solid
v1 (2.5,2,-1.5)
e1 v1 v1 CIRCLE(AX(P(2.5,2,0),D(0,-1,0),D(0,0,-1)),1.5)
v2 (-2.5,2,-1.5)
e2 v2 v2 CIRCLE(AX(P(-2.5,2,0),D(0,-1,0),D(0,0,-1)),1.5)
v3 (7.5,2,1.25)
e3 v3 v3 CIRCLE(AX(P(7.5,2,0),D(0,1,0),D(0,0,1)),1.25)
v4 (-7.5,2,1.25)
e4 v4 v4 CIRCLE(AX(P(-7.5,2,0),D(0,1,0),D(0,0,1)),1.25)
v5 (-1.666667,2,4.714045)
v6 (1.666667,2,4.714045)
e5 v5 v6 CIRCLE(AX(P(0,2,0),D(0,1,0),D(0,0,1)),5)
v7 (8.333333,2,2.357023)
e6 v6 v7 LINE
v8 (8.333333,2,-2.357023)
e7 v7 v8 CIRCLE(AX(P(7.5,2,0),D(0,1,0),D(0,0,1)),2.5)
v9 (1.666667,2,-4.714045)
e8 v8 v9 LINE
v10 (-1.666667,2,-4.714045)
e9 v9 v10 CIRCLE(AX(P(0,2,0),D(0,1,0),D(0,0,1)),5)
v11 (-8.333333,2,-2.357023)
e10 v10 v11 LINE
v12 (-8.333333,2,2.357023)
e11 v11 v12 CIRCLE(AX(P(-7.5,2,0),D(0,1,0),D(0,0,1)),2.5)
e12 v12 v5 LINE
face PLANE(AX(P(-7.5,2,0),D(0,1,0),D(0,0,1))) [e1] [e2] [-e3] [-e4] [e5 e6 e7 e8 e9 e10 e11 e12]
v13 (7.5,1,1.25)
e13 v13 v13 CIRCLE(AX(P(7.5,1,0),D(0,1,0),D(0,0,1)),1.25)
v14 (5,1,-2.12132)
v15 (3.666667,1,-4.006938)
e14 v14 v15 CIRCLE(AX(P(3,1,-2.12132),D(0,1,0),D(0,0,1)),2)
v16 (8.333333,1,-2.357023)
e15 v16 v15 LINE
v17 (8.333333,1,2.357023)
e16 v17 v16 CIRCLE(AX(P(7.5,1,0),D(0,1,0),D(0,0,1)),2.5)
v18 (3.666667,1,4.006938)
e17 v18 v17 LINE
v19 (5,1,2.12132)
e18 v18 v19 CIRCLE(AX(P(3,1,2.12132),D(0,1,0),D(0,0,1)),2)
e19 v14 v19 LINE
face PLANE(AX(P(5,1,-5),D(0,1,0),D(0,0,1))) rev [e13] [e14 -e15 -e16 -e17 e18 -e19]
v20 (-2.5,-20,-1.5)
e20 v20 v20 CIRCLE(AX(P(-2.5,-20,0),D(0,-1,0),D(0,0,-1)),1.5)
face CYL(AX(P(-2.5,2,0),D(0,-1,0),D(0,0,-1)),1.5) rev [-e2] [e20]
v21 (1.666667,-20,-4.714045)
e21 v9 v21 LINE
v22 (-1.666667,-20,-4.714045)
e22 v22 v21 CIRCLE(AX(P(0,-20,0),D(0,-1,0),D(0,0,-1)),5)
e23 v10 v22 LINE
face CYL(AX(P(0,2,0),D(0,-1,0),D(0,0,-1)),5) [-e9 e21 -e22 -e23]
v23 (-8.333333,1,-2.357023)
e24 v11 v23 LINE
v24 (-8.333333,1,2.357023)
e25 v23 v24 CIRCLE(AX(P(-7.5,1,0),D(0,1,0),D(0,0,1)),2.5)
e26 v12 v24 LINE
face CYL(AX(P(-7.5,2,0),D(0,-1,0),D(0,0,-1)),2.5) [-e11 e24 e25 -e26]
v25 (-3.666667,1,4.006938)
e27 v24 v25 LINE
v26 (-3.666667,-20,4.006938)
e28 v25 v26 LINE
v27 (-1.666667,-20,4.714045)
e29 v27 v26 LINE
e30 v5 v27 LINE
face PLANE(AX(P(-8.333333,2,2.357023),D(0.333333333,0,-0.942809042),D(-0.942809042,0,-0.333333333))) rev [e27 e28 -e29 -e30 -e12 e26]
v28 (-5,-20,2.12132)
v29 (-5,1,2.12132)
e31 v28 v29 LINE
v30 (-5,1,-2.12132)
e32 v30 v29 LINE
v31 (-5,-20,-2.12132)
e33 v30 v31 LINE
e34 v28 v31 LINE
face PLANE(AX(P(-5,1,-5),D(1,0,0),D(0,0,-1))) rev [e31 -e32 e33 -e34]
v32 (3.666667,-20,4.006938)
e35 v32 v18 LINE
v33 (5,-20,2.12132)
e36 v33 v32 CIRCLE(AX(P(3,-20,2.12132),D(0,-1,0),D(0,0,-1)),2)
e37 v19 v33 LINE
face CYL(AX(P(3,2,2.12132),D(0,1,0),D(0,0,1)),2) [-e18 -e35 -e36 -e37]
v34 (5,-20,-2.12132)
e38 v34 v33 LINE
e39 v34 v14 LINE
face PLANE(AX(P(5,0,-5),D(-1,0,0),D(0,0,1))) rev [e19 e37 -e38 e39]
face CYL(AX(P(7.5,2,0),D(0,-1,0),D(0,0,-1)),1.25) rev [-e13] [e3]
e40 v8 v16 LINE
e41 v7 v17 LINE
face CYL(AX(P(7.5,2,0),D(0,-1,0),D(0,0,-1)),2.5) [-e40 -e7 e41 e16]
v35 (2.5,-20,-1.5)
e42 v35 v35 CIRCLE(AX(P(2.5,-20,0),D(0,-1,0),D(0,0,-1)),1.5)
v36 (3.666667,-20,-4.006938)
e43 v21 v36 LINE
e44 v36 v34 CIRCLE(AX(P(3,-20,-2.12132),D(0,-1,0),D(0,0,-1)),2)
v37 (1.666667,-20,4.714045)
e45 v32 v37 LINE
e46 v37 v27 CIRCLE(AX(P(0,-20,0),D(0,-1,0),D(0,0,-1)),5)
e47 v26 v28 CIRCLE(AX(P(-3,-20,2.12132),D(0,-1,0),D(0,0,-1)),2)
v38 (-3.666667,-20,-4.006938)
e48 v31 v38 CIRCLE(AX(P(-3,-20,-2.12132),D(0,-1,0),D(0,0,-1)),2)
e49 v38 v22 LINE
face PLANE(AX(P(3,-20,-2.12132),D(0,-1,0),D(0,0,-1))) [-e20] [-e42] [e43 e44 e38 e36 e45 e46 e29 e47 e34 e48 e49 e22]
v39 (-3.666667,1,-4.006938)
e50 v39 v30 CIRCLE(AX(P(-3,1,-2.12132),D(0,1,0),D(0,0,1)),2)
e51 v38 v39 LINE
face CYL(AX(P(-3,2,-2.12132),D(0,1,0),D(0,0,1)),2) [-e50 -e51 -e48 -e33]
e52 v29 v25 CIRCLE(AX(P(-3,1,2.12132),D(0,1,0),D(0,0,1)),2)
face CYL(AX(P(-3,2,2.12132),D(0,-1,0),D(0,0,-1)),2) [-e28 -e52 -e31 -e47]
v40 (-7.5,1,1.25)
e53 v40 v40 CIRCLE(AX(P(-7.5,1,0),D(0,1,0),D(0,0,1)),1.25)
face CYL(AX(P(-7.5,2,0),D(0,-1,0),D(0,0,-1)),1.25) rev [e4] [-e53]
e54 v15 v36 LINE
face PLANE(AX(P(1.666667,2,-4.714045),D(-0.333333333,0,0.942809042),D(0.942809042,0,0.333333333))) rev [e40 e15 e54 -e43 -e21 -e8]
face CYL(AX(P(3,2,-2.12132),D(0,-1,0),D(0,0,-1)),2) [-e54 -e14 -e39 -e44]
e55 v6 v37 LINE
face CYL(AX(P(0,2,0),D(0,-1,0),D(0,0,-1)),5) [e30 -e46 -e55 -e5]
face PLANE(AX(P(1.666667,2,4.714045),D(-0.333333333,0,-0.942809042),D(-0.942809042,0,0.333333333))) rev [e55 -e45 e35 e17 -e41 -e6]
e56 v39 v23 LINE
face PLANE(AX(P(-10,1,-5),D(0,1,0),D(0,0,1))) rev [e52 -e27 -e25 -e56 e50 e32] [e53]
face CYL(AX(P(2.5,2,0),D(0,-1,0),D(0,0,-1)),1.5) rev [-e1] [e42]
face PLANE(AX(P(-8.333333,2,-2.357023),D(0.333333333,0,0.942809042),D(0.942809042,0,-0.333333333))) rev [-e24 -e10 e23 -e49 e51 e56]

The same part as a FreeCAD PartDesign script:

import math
import FreeCAD as App
import Part
import Sketcher
from FreeCAD import Vector


def edges_at(feature, points):
    """Names of the edges that pass closest to the given points."""
    edges = feature.Shape.Edges
    near = lambda p: min(range(len(edges)), key=lambda i: edges[i].distToShape(Part.Vertex(*p))[0])
    return sorted({f"Edge{near(p) + 1}" for p in points})


def add_polygon(sketch, points):
    """Adds a closed chain of lines whose ends are joined by coincident constraints."""
    first, n = sketch.GeometryCount, len(points)
    for a, b in zip(points, points[1:] + points[:1]):
        sketch.addGeometry(Part.LineSegment(App.Vector(*a, 0), App.Vector(*b, 0)), False)
    for i in range(n):
        sketch.addConstraint(Sketcher.Constraint("Coincident", first + i, 2, first + (i + 1) % n, 1))

doc = App.newDocument("Part")
body = doc.addObject("PartDesign::Body", "Body")

# Sketch on XZ plane
sketch1 = doc.addObject("Sketcher::SketchObject", "Sketch")
body.addObject(sketch1)
sketch1.AttachmentSupport = (doc.XZ_Plane, [""])
sketch1.MapMode = "FlatFace"
sketch1.addGeometry([
    Part.LineSegment(Vector(-8.333333, 2.357023, 0), Vector(-1.666667, 4.714045, 0)),  # 0
    Part.ArcOfCircle(Part.Circle(Vector(0, 0, 0), Vector(0, 0, 1), 5), math.radians(70.528779), math.radians(109.471221)),  # 1
    Part.LineSegment(Vector(1.666667, 4.714045, 0), Vector(8.333333, 2.357023, 0)),  # 2
    Part.ArcOfCircle(Part.Circle(Vector(7.5, 0, 0), Vector(0, 0, 1), 2.5), math.radians(-70.528779), math.radians(70.528779)),  # 3
    Part.LineSegment(Vector(8.333333, -2.357023, 0), Vector(1.666667, -4.714045, 0)),  # 4
    Part.ArcOfCircle(Part.Circle(Vector(0, 0, 0), Vector(0, 0, 1), 5), math.radians(-109.471221), math.radians(-70.528779)),  # 5
    Part.LineSegment(Vector(-1.666667, -4.714045, 0), Vector(-8.333333, -2.357023, 0)),  # 6
    Part.ArcOfCircle(Part.Circle(Vector(-7.5, 0, 0), Vector(0, 0, 1), 2.5), math.radians(109.471221), math.radians(250.528779)),  # 7
    Part.Circle(Vector(-7.5, 0, 0), Vector(0, 0, 1), 1.25),  # 8
    Part.Circle(Vector(7.5, 0, 0), Vector(0, 0, 1), 1.25),  # 9
], False)
sketch1.addConstraint([
    Sketcher.Constraint("Tangent", 0, 2, 1, 2),
    Sketcher.Constraint("Tangent", 1, 1, 2, 1),
    Sketcher.Constraint("Tangent", 2, 2, 3, 2),
    Sketcher.Constraint("Tangent", 3, 1, 4, 1),
    Sketcher.Constraint("Tangent", 4, 2, 5, 2),
    Sketcher.Constraint("Tangent", 5, 1, 6, 1),
    Sketcher.Constraint("Tangent", 6, 2, 7, 2),
    Sketcher.Constraint("Tangent", 7, 1, 0, 1),
    Sketcher.Constraint("Coincident", 1, 3, -1, 1),
    Sketcher.Constraint("Coincident", 5, 3, -1, 1),
    Sketcher.Constraint("Coincident", 8, 3, 7, 3),
    Sketcher.Constraint("Coincident", 9, 3, 3, 3),
    Sketcher.Constraint("Equal", 1, 5),
    Sketcher.Constraint("Equal", 3, 7),
    Sketcher.Constraint("Equal", 8, 9),
    Sketcher.Constraint("Symmetric", 3, 3, 7, 3, -1, 1),
    Sketcher.Constraint("PointOnObject", 3, 3, -1),
    Sketcher.Constraint("Radius", 1, 5.0),
    Sketcher.Constraint("Diameter", 8, 2.5),
    Sketcher.Constraint("Radius", 3, 2.5),
    Sketcher.Constraint("DistanceX", 7, 3, 3, 3, 15.0),
])
pad1 = doc.addObject("PartDesign::Pad", "Pad")
body.addObject(pad1)
pad1.Profile = sketch1
pad1.Length = 2
pad1.Reversed = True

# Sketch on XY plane
sketch2 = doc.addObject("Sketcher::SketchObject", "Sketch001")
body.addObject(sketch2)
sketch2.AttachmentSupport = (doc.XY_Plane, [""])
sketch2.MapMode = "FlatFace"
add_polygon(sketch2, [(-10, 1), (-10, 0), (-5, 0), (-5, 1)])  # lines 0-3
add_polygon(sketch2, [(5, 1), (5, 0), (10, 0), (10, 1)])  # lines 4-7
sketch2.addConstraint([
    Sketcher.Constraint("Vertical", 0),
    Sketcher.Constraint("Horizontal", 1),
    Sketcher.Constraint("Vertical", 2),
    Sketcher.Constraint("Horizontal", 3),
    Sketcher.Constraint("Vertical", 4),
    Sketcher.Constraint("Horizontal", 5),
    Sketcher.Constraint("Vertical", 6),
    Sketcher.Constraint("Horizontal", 7),
    Sketcher.Constraint("Symmetric", 1, 2, 4, 2, -1, 1),
    Sketcher.Constraint("Symmetric", 0, 2, 5, 2, -2),
    Sketcher.Constraint("Horizontal", 3, 2, 6, 2),
    Sketcher.Constraint("DistanceX", 1, 1, 1, 2, 5.0),
    Sketcher.Constraint("DistanceY", 0, 2, 0, 1, 1.0),
    Sketcher.Constraint("DistanceX", 0, 2, -1, 1, 10.0),
])
pocket1 = doc.addObject("PartDesign::Pocket", "Pocket")
body.addObject(pocket1)
pocket1.Profile = sketch2
pocket1.Type = "ThroughAll"
pocket1.Midplane = True
doc.recompute()

fillet = doc.addObject("PartDesign::Fillet", "Fillet")
body.addObject(fillet)
fillet.Base = (pocket1, edges_at(pocket1, [
    (-5, 0.5, -3.536),
    (5, 0.5, -3.536),
    (-5, 0.5, 3.536),
    (5, 0.5, 3.536),
]))
fillet.Radius = 2

# Sketch on XZ plane
sketch3 = doc.addObject("Sketcher::SketchObject", "Sketch002")
body.addObject(sketch3)
sketch3.AttachmentSupport = (doc.XZ_Plane, [""])
sketch3.MapMode = "FlatFace"
sketch3.AttachmentOffset = App.Placement(Vector(0, 0, 20), App.Rotation())
sketch3.addGeometry([
    Part.LineSegment(Vector(5, -2.12132, 0), Vector(5, 2.12132, 0)),  # 0
    Part.ArcOfCircle(Part.Circle(Vector(3, 2.12132, 0), Vector(0, 0, 1), 2), math.radians(0), math.radians(70.528779)),  # 1
    Part.LineSegment(Vector(3.666667, 4.006938, 0), Vector(1.666667, 4.714045, 0)),  # 2
    Part.ArcOfCircle(Part.Circle(Vector(0, 0, 0), Vector(0, 0, 1), 5), math.radians(70.528779), math.radians(109.471221)),  # 3
    Part.LineSegment(Vector(-1.666667, 4.714045, 0), Vector(-3.666667, 4.006938, 0)),  # 4
    Part.ArcOfCircle(Part.Circle(Vector(-3, 2.12132, 0), Vector(0, 0, 1), 2), math.radians(109.471221), math.radians(180)),  # 5
    Part.LineSegment(Vector(-5, 2.12132, 0), Vector(-5, -2.12132, 0)),  # 6
    Part.ArcOfCircle(Part.Circle(Vector(-3, -2.12132, 0), Vector(0, 0, 1), 2), math.radians(180), math.radians(250.528779)),  # 7
    Part.LineSegment(Vector(-3.666667, -4.006938, 0), Vector(-1.666667, -4.714045, 0)),  # 8
    Part.ArcOfCircle(Part.Circle(Vector(0, 0, 0), Vector(0, 0, 1), 5), math.radians(-109.471221), math.radians(-70.528779)),  # 9
    Part.LineSegment(Vector(1.666667, -4.714045, 0), Vector(3.666667, -4.006938, 0)),  # 10
    Part.ArcOfCircle(Part.Circle(Vector(3, -2.12132, 0), Vector(0, 0, 1), 2), math.radians(-70.528779), math.radians(0)),  # 11
], False)
sketch3.addConstraint([
    Sketcher.Constraint("Tangent", 0, 2, 1, 1),
    Sketcher.Constraint("Tangent", 1, 2, 2, 1),
    Sketcher.Constraint("Tangent", 2, 2, 3, 1),
    Sketcher.Constraint("Tangent", 3, 2, 4, 1),
    Sketcher.Constraint("Tangent", 4, 2, 5, 1),
    Sketcher.Constraint("Tangent", 5, 2, 6, 1),
    Sketcher.Constraint("Tangent", 6, 2, 7, 1),
    Sketcher.Constraint("Tangent", 7, 2, 8, 1),
    Sketcher.Constraint("Tangent", 8, 2, 9, 1),
    Sketcher.Constraint("Tangent", 9, 2, 10, 1),
    Sketcher.Constraint("Tangent", 10, 2, 11, 1),
    Sketcher.Constraint("Tangent", 11, 2, 0, 1),
    Sketcher.Constraint("Vertical", 0),
    Sketcher.Constraint("Vertical", 6),
    Sketcher.Constraint("Coincident", 3, 3, -1, 1),
    Sketcher.Constraint("Coincident", 9, 3, -1, 1),
    Sketcher.Constraint("Equal", 1, 5),
    Sketcher.Constraint("Equal", 5, 7),
    Sketcher.Constraint("Equal", 3, 9),
    Sketcher.Constraint("Equal", 7, 11),
    Sketcher.Constraint("Symmetric", 1, 3, 7, 3, -1, 1),
    Sketcher.Constraint("Parallel", 4, 10),
    Sketcher.Constraint("Horizontal", 1, 3, 5, 3),
    Sketcher.Constraint("Radius", 1, 2.0),
    Sketcher.Constraint("Radius", 3, 5.0),
    Sketcher.Constraint("DistanceX", -1, 1, 1, 3, 3.0),
    Sketcher.Constraint("DistanceX", 2, 2, 1, 2, 2.0),
])
pad2 = doc.addObject("PartDesign::Pad", "Pad001")
body.addObject(pad2)
pad2.Profile = sketch3
pad2.Length = 20
pad2.Reversed = True

# Sketch on XZ plane
sketch4 = doc.addObject("Sketcher::SketchObject", "Sketch003")
body.addObject(sketch4)
sketch4.AttachmentSupport = (doc.XZ_Plane, [""])
sketch4.MapMode = "FlatFace"
sketch4.AttachmentOffset = App.Placement(Vector(0, 0, 20), App.Rotation())
sketch4.addGeometry([
    Part.Circle(Vector(-2.5, 0, 0), Vector(0, 0, 1), 1.5),
    Part.Circle(Vector(2.5, 0, 0), Vector(0, 0, 1), 1.5),
], False)
sketch4.addConstraint([
    Sketcher.Constraint("Equal", 0, 1),
    Sketcher.Constraint("Symmetric", 0, 3, 1, 3, -1, 1),
    Sketcher.Constraint("PointOnObject", 0, 3, -1),
    Sketcher.Constraint("Diameter", 0, 3.0),
    Sketcher.Constraint("DistanceX", 0, 3, 1, 3, 5.0),
])
pocket2 = doc.addObject("PartDesign::Pocket", "Pocket001")
body.addObject(pocket2)
pocket2.Profile = sketch4
pocket2.Type = "ThroughAll"

doc.recompute()
